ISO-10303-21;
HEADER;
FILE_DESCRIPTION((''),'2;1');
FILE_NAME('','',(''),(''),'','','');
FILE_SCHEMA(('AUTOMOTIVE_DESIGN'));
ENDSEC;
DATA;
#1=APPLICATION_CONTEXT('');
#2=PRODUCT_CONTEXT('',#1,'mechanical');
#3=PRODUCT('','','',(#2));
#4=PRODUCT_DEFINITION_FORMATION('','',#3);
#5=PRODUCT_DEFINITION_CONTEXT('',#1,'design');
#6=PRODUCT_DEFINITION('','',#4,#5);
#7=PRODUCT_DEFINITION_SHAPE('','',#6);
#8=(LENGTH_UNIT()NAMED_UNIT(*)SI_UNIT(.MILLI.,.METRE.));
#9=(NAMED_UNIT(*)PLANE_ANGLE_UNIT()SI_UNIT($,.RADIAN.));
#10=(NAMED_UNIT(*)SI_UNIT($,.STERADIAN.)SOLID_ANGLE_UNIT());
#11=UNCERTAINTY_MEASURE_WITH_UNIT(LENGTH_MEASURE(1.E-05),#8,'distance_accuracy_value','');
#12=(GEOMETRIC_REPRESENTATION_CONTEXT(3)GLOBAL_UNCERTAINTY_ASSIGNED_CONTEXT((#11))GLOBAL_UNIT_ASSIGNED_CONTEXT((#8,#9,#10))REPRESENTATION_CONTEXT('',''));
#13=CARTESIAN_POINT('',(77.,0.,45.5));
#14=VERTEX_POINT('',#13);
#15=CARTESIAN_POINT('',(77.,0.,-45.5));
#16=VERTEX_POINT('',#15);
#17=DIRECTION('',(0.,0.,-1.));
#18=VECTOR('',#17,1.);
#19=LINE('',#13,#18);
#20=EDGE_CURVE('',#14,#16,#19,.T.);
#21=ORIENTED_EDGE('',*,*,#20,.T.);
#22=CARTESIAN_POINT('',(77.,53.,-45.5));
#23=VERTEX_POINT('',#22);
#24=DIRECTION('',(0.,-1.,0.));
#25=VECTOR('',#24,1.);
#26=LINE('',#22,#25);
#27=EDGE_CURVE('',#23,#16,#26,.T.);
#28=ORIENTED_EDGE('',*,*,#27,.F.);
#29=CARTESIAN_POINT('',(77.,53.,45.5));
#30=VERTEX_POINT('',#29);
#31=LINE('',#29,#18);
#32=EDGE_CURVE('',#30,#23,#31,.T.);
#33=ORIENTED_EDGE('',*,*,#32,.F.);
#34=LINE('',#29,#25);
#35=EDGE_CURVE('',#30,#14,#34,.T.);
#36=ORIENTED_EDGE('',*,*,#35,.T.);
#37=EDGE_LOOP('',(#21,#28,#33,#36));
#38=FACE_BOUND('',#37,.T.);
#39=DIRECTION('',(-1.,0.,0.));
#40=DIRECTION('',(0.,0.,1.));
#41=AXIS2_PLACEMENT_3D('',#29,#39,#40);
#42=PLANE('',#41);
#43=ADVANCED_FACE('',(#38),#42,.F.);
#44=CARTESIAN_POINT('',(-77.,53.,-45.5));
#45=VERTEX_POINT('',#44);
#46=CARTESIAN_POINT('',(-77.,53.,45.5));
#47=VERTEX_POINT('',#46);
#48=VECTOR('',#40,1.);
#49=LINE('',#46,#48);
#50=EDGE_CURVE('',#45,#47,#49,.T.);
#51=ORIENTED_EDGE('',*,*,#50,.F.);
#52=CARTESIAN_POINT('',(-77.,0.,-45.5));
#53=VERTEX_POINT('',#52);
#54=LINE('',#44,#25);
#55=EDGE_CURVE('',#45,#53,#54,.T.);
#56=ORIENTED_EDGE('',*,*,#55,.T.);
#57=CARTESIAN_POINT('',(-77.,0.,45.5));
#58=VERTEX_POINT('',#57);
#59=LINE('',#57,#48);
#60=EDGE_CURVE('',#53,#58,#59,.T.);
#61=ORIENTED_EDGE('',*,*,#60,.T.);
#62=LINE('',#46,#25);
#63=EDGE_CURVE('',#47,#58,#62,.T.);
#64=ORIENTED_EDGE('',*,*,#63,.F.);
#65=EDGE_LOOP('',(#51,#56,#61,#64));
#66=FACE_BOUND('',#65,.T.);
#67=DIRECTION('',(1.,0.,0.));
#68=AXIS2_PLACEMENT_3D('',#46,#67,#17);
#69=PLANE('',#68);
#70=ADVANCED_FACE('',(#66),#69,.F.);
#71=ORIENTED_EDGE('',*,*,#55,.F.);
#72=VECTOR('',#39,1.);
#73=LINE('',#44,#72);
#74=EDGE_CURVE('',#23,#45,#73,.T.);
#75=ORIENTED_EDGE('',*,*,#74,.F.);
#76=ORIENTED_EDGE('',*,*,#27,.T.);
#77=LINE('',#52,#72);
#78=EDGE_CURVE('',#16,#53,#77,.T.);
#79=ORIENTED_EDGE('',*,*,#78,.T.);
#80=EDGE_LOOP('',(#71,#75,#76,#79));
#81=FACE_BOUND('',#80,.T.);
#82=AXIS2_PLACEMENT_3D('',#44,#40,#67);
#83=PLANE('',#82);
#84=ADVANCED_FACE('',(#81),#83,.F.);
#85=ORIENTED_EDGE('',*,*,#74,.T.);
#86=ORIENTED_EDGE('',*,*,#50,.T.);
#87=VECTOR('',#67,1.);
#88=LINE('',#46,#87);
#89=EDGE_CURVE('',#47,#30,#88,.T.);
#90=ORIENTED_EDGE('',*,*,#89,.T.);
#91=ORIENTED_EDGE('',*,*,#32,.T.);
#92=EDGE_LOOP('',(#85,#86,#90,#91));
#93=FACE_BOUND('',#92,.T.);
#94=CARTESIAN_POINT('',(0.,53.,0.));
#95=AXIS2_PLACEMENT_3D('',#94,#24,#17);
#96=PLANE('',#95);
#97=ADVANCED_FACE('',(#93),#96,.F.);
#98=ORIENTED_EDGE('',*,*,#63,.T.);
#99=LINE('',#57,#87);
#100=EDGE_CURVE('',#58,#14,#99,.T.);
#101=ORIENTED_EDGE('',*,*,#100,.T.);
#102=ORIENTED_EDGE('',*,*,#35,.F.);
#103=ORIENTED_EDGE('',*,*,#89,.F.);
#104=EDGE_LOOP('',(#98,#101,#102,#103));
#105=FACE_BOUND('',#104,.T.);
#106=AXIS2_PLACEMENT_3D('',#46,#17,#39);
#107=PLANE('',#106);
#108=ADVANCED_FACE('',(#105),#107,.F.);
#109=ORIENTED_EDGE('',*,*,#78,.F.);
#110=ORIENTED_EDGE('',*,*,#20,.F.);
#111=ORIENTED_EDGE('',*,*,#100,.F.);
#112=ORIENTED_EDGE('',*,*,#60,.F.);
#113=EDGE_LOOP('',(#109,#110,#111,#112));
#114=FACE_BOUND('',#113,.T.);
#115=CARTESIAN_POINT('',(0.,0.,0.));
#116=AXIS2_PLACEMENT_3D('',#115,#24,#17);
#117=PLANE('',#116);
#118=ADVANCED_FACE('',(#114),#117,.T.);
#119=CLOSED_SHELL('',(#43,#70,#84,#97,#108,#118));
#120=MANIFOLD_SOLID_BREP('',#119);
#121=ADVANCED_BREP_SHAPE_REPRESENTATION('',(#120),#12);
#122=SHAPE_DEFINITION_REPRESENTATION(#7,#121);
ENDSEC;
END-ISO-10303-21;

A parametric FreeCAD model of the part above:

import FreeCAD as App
import Part
import Sketcher
from FreeCAD import Vector

doc = App.newDocument("Part")
params = doc.addObject("Spreadsheet::Sheet", "Params")
for row, (alias, value) in enumerate([
    ("sketch1_width", "154 mm"),
    ("sketch1_height", "91 mm"),
    ("pad1_length", "53 mm"),
], start=1):
    params.set(f"A{row}", alias)
    params.set(f"B{row}", "=" + value)
    params.setAlias(f"B{row}", alias)

body = doc.addObject("PartDesign::Body", "Body")

# Sketch on XZ plane
sketch1 = body.newObject("Sketcher::SketchObject", "Sketch")
sketch1.AttachmentSupport = (doc.getObject("XZ_Plane"), [""])
sketch1.MapMode = "FlatFace"
sketch1.addGeometry([
    Part.LineSegment(Vector(-77, -46, 0), Vector(-77, 46, 0)),
    Part.LineSegment(Vector(-77, 46, 0), Vector(77, 46, 0)),
    Part.LineSegment(Vector(77, 46, 0), Vector(77, -46, 0)),
    Part.LineSegment(Vector(77, -46, 0), Vector(-77, -46, 0)),
], False)
sketch1.addConstraint([
    Sketcher.Constraint("Coincident", 0, 2, 1, 1),
    Sketcher.Constraint("Coincident", 1, 2, 2, 1),
    Sketcher.Constraint("Coincident", 2, 2, 3, 1),
    Sketcher.Constraint("Coincident", 3, 2, 0, 1),
    Sketcher.Constraint("Vertical", 0),
    Sketcher.Constraint("Horizontal", 1),
    Sketcher.Constraint("Vertical", 2),
    Sketcher.Constraint("Horizontal", 3),
    Sketcher.Constraint("Symmetric", 0, 2, 2, 2, -1, 1),
    Sketcher.Constraint("DistanceX", 1, 1, 1, 2, 154.0),
    Sketcher.Constraint("DistanceY", 0, 1, 0, 2, 91.0),
])
sketch1.setExpression("Constraints[9]", "Params.sketch1_width")
sketch1.setExpression("Constraints[10]", "Params.sketch1_height")
pad1 = body.newObject("PartDesign::Pad", "Pad")
pad1.Profile = sketch1
pad1.setExpression("Length", "Params.pad1_length")
pad1.Reversed = True

doc.recompute()
